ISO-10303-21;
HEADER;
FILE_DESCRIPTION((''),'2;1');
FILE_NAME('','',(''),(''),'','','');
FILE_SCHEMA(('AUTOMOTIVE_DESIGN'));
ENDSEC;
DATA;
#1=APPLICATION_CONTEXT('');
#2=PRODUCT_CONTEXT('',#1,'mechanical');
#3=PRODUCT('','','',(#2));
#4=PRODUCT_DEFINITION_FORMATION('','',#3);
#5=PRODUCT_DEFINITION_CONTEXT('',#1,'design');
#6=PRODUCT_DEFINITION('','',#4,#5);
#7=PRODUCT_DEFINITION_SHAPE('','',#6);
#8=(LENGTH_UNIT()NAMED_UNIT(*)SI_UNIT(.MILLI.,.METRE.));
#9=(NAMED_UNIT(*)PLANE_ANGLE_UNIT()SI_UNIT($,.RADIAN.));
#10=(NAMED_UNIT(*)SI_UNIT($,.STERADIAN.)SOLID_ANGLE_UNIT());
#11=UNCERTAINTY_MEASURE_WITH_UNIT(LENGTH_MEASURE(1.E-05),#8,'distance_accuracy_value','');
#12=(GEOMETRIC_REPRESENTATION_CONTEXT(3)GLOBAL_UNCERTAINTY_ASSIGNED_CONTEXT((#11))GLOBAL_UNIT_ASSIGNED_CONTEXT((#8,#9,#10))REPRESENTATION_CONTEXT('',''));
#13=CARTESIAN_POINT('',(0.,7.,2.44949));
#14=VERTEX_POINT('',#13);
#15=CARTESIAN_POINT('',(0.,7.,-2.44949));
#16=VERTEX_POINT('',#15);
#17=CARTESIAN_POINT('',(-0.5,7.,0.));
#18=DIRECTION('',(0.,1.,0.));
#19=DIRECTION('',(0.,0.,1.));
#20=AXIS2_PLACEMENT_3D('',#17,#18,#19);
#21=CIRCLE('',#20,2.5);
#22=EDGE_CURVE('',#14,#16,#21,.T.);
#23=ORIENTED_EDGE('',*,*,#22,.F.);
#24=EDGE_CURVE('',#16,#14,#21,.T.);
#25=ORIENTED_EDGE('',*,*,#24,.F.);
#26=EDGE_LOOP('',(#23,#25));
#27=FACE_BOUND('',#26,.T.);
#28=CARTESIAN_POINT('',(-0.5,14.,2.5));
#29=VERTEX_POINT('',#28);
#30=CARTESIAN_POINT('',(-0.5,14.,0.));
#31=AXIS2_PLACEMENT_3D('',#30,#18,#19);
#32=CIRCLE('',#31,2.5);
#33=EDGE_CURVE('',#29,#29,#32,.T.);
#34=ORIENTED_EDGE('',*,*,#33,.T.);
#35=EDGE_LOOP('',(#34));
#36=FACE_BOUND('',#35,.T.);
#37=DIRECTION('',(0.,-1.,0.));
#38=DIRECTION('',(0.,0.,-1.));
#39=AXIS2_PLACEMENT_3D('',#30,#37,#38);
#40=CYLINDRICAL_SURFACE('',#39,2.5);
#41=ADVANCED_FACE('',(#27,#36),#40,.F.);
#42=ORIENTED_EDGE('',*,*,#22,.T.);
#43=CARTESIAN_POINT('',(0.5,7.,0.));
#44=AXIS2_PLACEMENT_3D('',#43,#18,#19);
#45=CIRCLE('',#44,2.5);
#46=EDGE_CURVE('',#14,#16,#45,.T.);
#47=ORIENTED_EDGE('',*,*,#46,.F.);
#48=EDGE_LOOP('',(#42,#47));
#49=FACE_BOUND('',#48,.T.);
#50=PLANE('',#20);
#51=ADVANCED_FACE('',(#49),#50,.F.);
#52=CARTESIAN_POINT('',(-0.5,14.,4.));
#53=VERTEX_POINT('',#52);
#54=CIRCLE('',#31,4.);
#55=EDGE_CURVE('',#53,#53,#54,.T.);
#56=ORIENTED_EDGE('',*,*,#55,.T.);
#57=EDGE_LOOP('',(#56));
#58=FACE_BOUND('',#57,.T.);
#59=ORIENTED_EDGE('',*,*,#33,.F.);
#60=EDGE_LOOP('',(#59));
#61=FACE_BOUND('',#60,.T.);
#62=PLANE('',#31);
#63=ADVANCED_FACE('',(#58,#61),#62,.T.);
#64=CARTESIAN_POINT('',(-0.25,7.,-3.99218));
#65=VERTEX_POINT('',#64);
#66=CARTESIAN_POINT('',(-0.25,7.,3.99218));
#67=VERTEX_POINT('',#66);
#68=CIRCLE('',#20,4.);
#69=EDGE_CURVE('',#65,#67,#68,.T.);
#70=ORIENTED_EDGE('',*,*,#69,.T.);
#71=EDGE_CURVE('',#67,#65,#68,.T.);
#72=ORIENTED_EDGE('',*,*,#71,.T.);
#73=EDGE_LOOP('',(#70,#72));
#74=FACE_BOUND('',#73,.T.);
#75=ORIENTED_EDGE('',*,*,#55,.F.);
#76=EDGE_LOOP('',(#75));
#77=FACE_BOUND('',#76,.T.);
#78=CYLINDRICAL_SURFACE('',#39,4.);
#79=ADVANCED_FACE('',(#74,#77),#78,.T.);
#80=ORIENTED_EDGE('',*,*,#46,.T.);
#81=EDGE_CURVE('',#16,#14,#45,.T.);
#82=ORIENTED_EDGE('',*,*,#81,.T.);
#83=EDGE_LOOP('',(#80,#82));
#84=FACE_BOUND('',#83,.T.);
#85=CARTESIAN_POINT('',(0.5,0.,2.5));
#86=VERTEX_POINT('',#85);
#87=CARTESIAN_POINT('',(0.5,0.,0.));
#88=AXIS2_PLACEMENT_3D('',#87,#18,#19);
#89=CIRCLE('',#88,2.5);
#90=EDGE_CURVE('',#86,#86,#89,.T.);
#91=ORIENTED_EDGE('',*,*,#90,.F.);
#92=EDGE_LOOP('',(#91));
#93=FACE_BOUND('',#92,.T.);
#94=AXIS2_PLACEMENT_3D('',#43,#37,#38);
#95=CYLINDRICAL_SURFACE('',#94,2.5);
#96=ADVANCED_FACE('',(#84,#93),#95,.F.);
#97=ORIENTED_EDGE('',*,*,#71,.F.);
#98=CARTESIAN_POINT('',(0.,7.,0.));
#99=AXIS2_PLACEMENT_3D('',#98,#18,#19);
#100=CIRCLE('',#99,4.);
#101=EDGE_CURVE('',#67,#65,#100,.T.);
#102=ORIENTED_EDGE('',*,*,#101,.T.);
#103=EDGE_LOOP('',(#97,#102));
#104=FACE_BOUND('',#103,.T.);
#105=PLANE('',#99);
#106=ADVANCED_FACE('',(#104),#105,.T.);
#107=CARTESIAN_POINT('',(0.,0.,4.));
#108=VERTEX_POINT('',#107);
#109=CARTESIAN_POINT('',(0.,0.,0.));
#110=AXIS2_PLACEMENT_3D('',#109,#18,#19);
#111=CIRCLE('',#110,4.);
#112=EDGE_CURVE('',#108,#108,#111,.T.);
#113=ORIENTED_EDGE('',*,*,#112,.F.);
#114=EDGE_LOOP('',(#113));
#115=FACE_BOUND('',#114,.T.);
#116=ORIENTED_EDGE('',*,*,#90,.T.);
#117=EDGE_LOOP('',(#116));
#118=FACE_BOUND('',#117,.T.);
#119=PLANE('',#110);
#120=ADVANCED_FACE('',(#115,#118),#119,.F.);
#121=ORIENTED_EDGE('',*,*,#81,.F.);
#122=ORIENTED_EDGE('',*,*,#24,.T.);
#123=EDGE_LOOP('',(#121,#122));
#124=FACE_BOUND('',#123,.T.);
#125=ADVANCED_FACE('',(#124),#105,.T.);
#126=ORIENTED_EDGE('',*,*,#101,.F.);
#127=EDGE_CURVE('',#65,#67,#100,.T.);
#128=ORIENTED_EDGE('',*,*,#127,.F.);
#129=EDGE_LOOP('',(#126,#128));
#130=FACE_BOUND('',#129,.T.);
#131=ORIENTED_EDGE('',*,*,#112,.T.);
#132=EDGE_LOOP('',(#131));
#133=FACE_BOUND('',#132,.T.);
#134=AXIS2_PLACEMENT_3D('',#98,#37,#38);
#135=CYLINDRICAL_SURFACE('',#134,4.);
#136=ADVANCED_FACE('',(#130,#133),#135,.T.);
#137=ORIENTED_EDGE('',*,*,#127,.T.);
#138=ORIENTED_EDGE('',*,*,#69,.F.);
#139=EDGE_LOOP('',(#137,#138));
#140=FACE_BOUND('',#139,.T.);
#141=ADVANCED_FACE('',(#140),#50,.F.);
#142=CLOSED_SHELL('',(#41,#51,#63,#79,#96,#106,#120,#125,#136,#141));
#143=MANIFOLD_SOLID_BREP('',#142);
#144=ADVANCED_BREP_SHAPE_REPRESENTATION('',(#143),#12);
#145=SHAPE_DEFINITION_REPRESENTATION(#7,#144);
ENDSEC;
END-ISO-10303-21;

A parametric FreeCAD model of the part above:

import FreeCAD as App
import Part
import Sketcher
Q = App.Units.Quantity

doc = App.newDocument("Part")
body = doc.addObject("PartDesign::Body", "Body")

sketch1 = doc.addObject("Sketcher::SketchObject", "Sketch")
body.addObject(sketch1)
sketch1.AttachmentSupport = (doc.XZ_Plane, [""])
sketch1.MapMode = "FlatFace"
sketch1.addGeometry([
    Part.Circle(App.Vector(0, 0, 0), App.Vector(0, 0, 1), 4),
    Part.Circle(App.Vector(0.5, 0, 0), App.Vector(0, 0, 1), 2.5),
], False)
sketch1.addConstraint([
    Sketcher.Constraint("Coincident", 0, 3, -1, 1),
    Sketcher.Constraint("PointOnObject", 1, 3, -1),
    Sketcher.Constraint("Diameter", 0, Q("8 mm")),
    Sketcher.Constraint("Diameter", 1, Q("5 mm")),
    Sketcher.Constraint("DistanceX", -1, 1, 1, 3, Q("0.5 mm")),
])
pad1 = doc.addObject("PartDesign::Pad", "Pad")
body.addObject(pad1)
pad1.Profile = sketch1
pad1.Length = 7
pad1.Reversed = True

sketch2 = doc.addObject("Sketcher::SketchObject", "Sketch001")
body.addObject(sketch2)
sketch2.AttachmentSupport = (doc.XZ_Plane, [""])
sketch2.MapMode = "FlatFace"
sketch2.AttachmentOffset = App.Placement(App.Vector(0, 0, -7), App.Rotation())
sketch2.addGeometry([
    Part.Circle(App.Vector(-0.5, 0, 0), App.Vector(0, 0, 1), 4),
    Part.Circle(App.Vector(-0.5, 0, 0), App.Vector(0, 0, 1), 2.5),
], False)
sketch2.addConstraint([
    Sketcher.Constraint("Coincident", 1, 3, 0, 3),
    Sketcher.Constraint("PointOnObject", 0, 3, -1),
    Sketcher.Constraint("Diameter", 0, Q("8 mm")),
    Sketcher.Constraint("Diameter", 1, Q("5 mm")),
    Sketcher.Constraint("DistanceX", 0, 3, -1, 1, Q("0.5 mm")),
])
pad2 = doc.addObject("PartDesign::Pad", "Pad001")
body.addObject(pad2)
pad2.Profile = sketch2
pad2.Length = 7
pad2.Reversed = True

doc.recompute()
